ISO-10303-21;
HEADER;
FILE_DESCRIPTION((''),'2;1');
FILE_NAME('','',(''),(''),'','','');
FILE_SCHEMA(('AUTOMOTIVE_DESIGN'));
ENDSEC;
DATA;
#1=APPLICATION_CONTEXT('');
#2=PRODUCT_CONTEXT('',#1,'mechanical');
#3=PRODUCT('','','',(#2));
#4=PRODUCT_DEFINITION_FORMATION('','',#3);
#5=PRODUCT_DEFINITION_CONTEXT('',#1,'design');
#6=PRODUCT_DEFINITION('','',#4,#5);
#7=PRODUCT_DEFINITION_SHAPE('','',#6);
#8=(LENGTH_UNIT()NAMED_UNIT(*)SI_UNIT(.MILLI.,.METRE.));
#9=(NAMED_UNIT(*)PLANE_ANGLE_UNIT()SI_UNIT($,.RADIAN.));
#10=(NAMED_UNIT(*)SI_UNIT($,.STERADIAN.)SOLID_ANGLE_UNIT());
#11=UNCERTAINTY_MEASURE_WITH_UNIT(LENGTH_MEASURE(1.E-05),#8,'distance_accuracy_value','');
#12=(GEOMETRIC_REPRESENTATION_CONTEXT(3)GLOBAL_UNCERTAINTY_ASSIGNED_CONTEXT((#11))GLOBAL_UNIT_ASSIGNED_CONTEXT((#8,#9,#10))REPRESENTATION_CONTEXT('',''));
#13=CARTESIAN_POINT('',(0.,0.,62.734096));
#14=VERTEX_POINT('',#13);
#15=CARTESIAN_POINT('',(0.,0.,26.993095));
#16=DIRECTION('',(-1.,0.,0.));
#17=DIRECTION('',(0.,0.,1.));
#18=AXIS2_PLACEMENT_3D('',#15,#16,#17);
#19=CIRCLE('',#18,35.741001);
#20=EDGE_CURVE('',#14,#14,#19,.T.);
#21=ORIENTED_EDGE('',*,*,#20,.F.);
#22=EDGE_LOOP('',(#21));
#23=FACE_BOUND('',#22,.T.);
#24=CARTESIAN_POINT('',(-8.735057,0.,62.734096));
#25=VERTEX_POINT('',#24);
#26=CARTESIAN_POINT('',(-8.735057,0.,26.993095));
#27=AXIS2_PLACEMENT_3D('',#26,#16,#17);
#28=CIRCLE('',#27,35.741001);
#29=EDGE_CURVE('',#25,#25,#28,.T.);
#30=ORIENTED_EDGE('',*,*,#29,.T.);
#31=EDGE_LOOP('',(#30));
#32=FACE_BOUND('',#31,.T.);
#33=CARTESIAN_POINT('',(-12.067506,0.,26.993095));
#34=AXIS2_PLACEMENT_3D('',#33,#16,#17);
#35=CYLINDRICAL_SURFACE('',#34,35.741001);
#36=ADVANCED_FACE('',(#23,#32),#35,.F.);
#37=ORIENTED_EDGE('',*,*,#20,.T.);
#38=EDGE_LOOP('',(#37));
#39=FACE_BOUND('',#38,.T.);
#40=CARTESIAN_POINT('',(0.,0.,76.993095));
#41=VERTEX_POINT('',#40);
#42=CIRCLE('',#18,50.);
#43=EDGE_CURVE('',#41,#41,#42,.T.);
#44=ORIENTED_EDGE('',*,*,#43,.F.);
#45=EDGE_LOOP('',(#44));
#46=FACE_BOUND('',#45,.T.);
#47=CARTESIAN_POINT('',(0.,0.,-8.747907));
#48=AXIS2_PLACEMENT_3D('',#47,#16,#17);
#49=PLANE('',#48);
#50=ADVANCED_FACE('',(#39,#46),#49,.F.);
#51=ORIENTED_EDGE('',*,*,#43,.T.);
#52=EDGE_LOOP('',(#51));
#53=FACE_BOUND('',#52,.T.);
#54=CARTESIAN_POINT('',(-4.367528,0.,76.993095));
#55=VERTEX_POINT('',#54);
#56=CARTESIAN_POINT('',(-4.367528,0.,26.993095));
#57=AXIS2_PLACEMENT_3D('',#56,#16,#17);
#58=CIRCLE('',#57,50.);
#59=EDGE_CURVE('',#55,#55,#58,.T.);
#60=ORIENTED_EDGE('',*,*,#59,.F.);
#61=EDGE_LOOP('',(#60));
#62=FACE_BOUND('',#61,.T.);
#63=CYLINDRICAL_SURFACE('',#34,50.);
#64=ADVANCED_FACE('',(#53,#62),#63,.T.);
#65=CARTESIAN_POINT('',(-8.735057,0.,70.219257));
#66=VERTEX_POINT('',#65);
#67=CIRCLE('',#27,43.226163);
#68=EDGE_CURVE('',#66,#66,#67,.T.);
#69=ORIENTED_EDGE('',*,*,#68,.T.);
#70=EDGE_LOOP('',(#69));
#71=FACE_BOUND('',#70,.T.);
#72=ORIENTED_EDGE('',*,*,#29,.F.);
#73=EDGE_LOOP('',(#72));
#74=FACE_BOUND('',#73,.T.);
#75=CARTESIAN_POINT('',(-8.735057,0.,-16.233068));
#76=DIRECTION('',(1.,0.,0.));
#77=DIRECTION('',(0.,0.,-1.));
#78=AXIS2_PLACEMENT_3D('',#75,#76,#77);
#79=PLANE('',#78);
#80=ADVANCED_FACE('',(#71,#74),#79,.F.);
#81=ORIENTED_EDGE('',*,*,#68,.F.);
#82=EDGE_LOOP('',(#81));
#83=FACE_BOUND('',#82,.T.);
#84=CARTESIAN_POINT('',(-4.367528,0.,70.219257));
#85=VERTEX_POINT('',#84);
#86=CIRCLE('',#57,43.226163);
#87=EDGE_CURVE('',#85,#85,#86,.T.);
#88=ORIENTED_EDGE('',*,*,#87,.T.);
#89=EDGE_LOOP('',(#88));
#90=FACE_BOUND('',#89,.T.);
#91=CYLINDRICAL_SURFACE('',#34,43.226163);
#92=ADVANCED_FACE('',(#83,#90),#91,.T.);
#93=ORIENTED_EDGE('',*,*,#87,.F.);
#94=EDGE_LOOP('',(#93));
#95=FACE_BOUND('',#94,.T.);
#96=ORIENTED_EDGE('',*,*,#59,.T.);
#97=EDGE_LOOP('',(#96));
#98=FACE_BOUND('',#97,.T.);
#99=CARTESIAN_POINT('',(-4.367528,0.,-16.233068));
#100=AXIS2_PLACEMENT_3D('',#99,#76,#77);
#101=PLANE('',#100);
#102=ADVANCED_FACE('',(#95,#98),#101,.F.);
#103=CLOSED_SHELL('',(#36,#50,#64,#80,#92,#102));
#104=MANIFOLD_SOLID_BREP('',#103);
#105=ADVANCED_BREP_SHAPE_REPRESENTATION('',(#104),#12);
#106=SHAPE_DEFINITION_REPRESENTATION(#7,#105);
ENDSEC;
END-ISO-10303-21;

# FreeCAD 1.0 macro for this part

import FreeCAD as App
import Part
import Sketcher

V = App.Vector
Q = App.Units.Quantity


def add_polygon(sketch, points):
    """Adds a closed chain of lines whose ends are joined by coincident constraints."""
    first, n = sketch.GeometryCount, len(points)
    for a, b in zip(points, points[1:] + points[:1]):
        sketch.addGeometry(Part.LineSegment(App.Vector(*a, 0), App.Vector(*b, 0)), False)
    for i in range(n):
        sketch.addConstraint(Sketcher.Constraint("Coincident", first + i, 2, first + (i + 1) % n, 1))

doc = App.newDocument("Part")
body = doc.addObject("PartDesign::Body", "Body")

sketch1 = body.newObject("Sketcher::SketchObject", "Sketch")
sketch1.AttachmentSupport = (doc.getObject("XZ_Plane"), [""])
sketch1.MapMode = "FlatFace"
add_polygon(sketch1, [(-8.735057, -16.233068), (-8.735057, -8.747907), (0, -8.747907), (0, -23.006905), (-4.367528, -23.006905), (-4.367528, -16.233068)])
sketch1.addGeometry(Part.LineSegment(V(-8.735057, 26.993095, 0), V(0, 26.993095, 0)), True)
sketch1.addConstraint(Sketcher.Constraint("Vertical", 0))
sketch1.addConstraint(Sketcher.Constraint("Horizontal", 1))
sketch1.addConstraint(Sketcher.Constraint("Vertical", 2))
sketch1.addConstraint(Sketcher.Constraint("Horizontal", 3))
sketch1.addConstraint(Sketcher.Constraint("Vertical", 4))
sketch1.addConstraint(Sketcher.Constraint("Horizontal", 5))
sketch1.addConstraint(Sketcher.Constraint("Horizontal", 6))
sketch1.addConstraint(Sketcher.Constraint("PointOnObject", 1, 2, -2))
sketch1.addConstraint(Sketcher.Constraint("PointOnObject", 6, 2, -2))
sketch1.addConstraint(Sketcher.Constraint("Vertical", 5, 2, 6, 1))
sketch1.addConstraint(Sketcher.Constraint("Equal", 3, 5))
sketch1.addConstraint(Sketcher.Constraint("DistanceY", 3, 2, 6, 1, Q("50 mm")))
sketch1.addConstraint(Sketcher.Constraint("DistanceY", 2, 2, 2, 1, Q("14.258999 mm")))
sketch1.addConstraint(Sketcher.Constraint("DistanceX", 3, 2, 3, 1, Q("4.367528 mm")))
sketch1.addConstraint(Sketcher.Constraint("DistanceY", 0, 1, 0, 2, Q("7.485161 mm")))
sketch1.addConstraint(Sketcher.Constraint("DistanceY", 0, 2, -1, 1, Q("8.747907 mm")))
revolution = body.newObject("PartDesign::Revolution", "Revolution")
revolution.Profile = sketch1
revolution.ReferenceAxis = (sketch1, ["Axis0"])
revolution.Angle = 360

doc.recompute()
